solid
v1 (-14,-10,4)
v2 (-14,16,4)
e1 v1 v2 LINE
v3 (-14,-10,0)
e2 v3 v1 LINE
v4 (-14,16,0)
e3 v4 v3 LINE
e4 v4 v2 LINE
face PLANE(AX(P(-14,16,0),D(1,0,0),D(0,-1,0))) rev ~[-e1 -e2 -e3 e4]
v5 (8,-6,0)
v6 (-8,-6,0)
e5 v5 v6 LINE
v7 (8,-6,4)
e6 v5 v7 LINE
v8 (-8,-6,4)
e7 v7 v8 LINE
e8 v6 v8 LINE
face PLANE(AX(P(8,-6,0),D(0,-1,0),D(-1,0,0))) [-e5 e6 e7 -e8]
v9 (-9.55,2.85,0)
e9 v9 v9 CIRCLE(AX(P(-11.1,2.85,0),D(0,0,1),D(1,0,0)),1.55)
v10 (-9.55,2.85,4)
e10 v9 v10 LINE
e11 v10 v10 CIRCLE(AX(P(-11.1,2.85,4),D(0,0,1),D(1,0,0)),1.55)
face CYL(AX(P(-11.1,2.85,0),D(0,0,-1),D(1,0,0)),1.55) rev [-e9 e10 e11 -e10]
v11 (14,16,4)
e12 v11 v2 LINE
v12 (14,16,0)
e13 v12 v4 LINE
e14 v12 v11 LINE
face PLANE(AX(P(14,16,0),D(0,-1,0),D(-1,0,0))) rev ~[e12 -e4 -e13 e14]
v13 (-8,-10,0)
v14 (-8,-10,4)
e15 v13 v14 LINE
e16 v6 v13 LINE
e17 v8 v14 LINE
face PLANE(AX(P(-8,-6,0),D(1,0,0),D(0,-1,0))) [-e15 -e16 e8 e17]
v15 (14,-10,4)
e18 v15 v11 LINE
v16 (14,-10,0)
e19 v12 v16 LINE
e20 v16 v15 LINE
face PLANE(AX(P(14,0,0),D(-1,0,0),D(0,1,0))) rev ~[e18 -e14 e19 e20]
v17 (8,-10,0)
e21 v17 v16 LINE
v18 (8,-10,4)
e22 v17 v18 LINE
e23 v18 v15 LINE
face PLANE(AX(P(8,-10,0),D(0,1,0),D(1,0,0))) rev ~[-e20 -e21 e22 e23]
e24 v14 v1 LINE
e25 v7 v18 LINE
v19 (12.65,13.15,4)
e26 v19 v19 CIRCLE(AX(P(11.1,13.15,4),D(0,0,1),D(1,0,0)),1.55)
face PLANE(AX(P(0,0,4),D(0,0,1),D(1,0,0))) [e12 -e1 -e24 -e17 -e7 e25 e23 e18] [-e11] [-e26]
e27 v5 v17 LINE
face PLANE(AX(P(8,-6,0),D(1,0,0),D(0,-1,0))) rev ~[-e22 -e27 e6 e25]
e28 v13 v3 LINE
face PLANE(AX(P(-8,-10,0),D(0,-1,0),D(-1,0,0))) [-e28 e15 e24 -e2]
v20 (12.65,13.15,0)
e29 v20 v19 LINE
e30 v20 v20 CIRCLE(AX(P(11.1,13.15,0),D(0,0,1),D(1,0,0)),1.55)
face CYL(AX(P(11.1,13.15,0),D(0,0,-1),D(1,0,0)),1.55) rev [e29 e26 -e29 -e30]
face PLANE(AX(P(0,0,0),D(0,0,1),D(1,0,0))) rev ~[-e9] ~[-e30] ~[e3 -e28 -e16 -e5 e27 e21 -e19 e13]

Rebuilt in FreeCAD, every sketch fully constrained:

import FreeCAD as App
import Part
import Sketcher
from FreeCAD import Vector

doc = App.newDocument("Part")
body = doc.addObject("PartDesign::Body", "Body")

sketch1 = body.newObject("Sketcher::SketchObject", "Sketch")
sketch1.AttachmentSupport = (doc.getObject("XY_Plane"), [""])
sketch1.MapMode = "FlatFace"
sketch1.addGeometry(Part.LineSegment(Vector(-14, 16, 0), Vector(-14, -10, 0)), False)
sketch1.addGeometry(Part.LineSegment(Vector(-14, -10, 0), Vector(-8, -10, 0)), False)
sketch1.addGeometry(Part.LineSegment(Vector(-8, -10, 0), Vector(-8, -6, 0)), False)
sketch1.addGeometry(Part.LineSegment(Vector(-8, -6, 0), Vector(8, -6, 0)), False)
sketch1.addGeometry(Part.LineSegment(Vector(8, -6, 0), Vector(8, -10, 0)), False)
sketch1.addGeometry(Part.LineSegment(Vector(8, -10, 0), Vector(14, -10, 0)), False)
sketch1.addGeometry(Part.LineSegment(Vector(14, -10, 0), Vector(14, 16, 0)), False)
sketch1.addGeometry(Part.LineSegment(Vector(14, 16, 0), Vector(-14, 16, 0)), False)
sketch1.addGeometry(Part.Circle(Vector(-11.1, 2.85, 0), Vector(0, 0, 1), 1.55), False)
sketch1.addGeometry(Part.Circle(Vector(11.1, 13.15, 0), Vector(0, 0, 1), 1.55), False)
sketch1.addConstraint(Sketcher.Constraint("Coincident", 0, 2, 1, 1))
sketch1.addConstraint(Sketcher.Constraint("Coincident", 1, 2, 2, 1))
sketch1.addConstraint(Sketcher.Constraint("Coincident", 2, 2, 3, 1))
sketch1.addConstraint(Sketcher.Constraint("Coincident", 3, 2, 4, 1))
sketch1.addConstraint(Sketcher.Constraint("Coincident", 4, 2, 5, 1))
sketch1.addConstraint(Sketcher.Constraint("Coincident", 5, 2, 6, 1))
sketch1.addConstraint(Sketcher.Constraint("Coincident", 6, 2, 7, 1))
sketch1.addConstraint(Sketcher.Constraint("Coincident", 7, 2, 0, 1))
sketch1.addConstraint(Sketcher.Constraint("Vertical", 0))
sketch1.addConstraint(Sketcher.Constraint("Horizontal", 1))
sketch1.addConstraint(Sketcher.Constraint("Vertical", 2))
sketch1.addConstraint(Sketcher.Constraint("Horizontal", 3))
sketch1.addConstraint(Sketcher.Constraint("Vertical", 4))
sketch1.addConstraint(Sketcher.Constraint("Horizontal", 5))
sketch1.addConstraint(Sketcher.Constraint("Vertical", 6))
sketch1.addConstraint(Sketcher.Constraint("Horizontal", 7))
sketch1.addConstraint(Sketcher.Constraint("Equal", 8, 9))
sketch1.addConstraint(Sketcher.Constraint("Symmetric", 1, 2, 4, 2, -2))
sketch1.addConstraint(Sketcher.Constraint("Equal", 1, 5))
sketch1.addConstraint(Sketcher.Constraint("Diameter", 8, 3.1))
sketch1.addConstraint(Sketcher.Constraint("DistanceX", 1, 1, 1, 2, 6.0))
sketch1.addConstraint(Sketcher.Constraint("DistanceX", 3, 1, 3, 2, 16.0))
sketch1.addConstraint(Sketcher.Constraint("DistanceY", 2, 1, 2, 2, 4.0))
sketch1.addConstraint(Sketcher.Constraint("DistanceY", 2, 2, -1, 1, 6.0))
sketch1.addConstraint(Sketcher.Constraint("DistanceY", -1, 1, 6, 2, 16.0))
sketch1.addConstraint(Sketcher.Constraint("DistanceX", 8, 3, 9, 3, 22.2))
sketch1.addConstraint(Sketcher.Constraint("DistanceY", 8, 3, 9, 3, 10.3))
sketch1.addConstraint(Sketcher.Constraint("DistanceX", 8, 3, 1, 2, 3.1))
sketch1.addConstraint(Sketcher.Constraint("DistanceY", -1, 1, 8, 3, 2.85))
pad1 = body.newObject("PartDesign::Pad", "Pad")
pad1.Profile = sketch1
pad1.Length = 4

doc.recompute()
